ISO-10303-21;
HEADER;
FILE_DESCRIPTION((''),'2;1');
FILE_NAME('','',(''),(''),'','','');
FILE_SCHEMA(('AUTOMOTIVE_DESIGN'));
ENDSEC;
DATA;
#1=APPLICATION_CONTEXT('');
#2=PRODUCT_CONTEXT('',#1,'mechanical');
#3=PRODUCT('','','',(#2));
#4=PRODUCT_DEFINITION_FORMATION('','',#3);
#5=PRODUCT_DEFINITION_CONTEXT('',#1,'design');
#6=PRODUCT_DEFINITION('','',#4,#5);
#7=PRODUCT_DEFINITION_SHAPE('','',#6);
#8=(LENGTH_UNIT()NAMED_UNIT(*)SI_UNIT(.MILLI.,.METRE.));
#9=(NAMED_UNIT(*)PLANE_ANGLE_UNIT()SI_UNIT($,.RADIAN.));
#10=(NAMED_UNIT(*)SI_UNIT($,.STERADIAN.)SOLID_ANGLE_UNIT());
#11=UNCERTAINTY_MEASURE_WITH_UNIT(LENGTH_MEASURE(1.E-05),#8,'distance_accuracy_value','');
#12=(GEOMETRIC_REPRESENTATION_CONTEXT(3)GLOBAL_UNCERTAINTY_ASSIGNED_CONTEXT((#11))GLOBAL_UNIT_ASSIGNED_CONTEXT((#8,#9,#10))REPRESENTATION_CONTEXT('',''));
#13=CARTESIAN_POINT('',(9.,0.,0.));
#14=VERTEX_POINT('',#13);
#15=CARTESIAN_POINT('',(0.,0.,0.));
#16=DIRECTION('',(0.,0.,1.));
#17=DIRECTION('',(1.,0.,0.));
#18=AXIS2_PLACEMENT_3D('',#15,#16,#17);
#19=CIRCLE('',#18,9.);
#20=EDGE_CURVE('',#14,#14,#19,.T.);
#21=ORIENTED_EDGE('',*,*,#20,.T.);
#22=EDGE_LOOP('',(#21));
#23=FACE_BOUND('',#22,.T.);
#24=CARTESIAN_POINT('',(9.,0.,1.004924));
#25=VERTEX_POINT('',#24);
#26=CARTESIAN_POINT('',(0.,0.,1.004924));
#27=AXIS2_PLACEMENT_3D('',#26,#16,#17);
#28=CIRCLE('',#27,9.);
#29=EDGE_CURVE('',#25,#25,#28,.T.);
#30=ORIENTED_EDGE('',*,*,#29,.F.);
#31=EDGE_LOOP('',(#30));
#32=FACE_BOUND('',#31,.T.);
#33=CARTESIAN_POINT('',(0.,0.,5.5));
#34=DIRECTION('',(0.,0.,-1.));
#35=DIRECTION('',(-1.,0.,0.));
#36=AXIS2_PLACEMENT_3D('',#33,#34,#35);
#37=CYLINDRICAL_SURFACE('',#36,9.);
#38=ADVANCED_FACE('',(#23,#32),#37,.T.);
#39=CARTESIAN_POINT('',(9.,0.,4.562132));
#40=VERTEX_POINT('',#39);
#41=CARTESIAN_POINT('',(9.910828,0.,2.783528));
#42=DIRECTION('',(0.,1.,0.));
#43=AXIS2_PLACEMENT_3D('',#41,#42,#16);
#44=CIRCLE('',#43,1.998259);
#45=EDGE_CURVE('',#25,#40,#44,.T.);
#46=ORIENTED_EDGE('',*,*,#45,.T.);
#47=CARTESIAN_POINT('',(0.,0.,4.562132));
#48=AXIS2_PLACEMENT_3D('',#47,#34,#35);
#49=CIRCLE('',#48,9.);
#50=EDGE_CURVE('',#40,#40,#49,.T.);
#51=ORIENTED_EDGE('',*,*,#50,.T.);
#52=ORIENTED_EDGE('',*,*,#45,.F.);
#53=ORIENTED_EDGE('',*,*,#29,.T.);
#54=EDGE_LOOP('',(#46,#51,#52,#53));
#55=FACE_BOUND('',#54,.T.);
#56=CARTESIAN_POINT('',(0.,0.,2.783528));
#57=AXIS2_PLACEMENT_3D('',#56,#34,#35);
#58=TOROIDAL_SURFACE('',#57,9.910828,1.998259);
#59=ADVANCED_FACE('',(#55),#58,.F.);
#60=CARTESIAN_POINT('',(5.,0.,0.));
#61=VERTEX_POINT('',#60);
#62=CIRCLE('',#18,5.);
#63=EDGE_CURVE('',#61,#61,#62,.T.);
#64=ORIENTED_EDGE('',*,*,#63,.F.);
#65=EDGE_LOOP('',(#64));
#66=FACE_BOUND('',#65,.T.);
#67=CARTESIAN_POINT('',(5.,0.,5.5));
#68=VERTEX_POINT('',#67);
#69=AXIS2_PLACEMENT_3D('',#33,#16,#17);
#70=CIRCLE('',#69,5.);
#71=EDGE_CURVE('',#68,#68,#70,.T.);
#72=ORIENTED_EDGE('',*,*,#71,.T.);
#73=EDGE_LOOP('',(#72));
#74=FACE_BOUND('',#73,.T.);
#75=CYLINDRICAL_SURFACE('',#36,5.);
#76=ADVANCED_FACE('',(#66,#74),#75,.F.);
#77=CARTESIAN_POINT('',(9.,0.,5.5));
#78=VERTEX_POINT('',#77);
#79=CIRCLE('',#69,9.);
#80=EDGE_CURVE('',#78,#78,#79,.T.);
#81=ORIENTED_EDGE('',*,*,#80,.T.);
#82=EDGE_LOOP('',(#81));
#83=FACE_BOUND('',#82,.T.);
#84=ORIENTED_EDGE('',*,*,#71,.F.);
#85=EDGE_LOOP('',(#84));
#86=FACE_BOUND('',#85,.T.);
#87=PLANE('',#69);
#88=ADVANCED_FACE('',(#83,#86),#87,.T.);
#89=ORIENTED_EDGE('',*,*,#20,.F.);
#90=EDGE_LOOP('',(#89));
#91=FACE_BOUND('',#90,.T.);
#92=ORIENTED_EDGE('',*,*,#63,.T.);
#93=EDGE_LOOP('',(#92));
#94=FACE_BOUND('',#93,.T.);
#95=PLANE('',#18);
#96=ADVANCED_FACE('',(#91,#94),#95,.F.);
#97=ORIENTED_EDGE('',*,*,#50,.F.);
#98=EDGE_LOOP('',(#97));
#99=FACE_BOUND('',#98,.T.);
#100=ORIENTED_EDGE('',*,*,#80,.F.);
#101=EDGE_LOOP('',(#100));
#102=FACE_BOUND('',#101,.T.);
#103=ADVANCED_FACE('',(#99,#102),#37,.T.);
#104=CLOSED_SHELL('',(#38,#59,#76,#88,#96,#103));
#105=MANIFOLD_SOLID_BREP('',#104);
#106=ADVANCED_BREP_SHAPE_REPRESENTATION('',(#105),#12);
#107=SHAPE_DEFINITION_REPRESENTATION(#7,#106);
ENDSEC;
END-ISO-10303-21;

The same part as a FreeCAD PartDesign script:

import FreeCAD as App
import Part
import Sketcher
from FreeCAD import Vector

doc = App.newDocument("Part")
body = doc.addObject("PartDesign::Body", "Body")

# Sketch on XY plane
sketch1 = body.newObject("Sketcher::SketchObject", "Sketch")
sketch1.AttachmentSupport = (doc.getObject("XY_Plane"), [""])
sketch1.MapMode = "FlatFace"
sketch1.addGeometry(Part.Circle(Vector(0, 0, 0), Vector(0, 0, 1), 9), False)
sketch1.addGeometry(Part.Circle(Vector(0, 0, 0), Vector(0, 0, 1), 5), False)
sketch1.addConstraint(Sketcher.Constraint("Coincident", 0, 3, -1, 1))
sketch1.addConstraint(Sketcher.Constraint("Coincident", 1, 3, -1, 1))
sketch1.addConstraint(Sketcher.Constraint("Diameter", 0, 18.0))
sketch1.addConstraint(Sketcher.Constraint("Diameter", 1, 10.0))
pad1 = body.newObject("PartDesign::Pad", "Pad")
pad1.Profile = sketch1
pad1.Length = 5.5

# Sketch on XZ plane
sketch2 = body.newObject("Sketcher::SketchObject", "Sketch001")
sketch2.AttachmentSupport = (doc.getObject("XZ_Plane"), [""])
sketch2.MapMode = "FlatFace"
sketch2.addGeometry(Part.Circle(Vector(9.910828, 2.783528, 0), Vector(0, 0, 1), 1.998259), False)
sketch2.addConstraint(Sketcher.Constraint("Diameter", 0, 3.996518))
sketch2.addConstraint(Sketcher.Constraint("DistanceX", -1, 1, 0, 3, 9.910828))
sketch2.addConstraint(Sketcher.Constraint("DistanceY", -1, 1, 0, 3, 2.783528))

# Sketch on XY plane
sketch3 = body.newObject("Sketcher::SketchObject", "Sketch002")
sketch3.AttachmentSupport = (doc.getObject("XY_Plane"), [""])
sketch3.MapMode = "FlatFace"
sketch3.addGeometry(Part.Circle(Vector(0, 0, 0), Vector(0, 0, 1), 9.906713), False)
sketch3.addConstraint(Sketcher.Constraint("Coincident", 0, 3, -1, 1))
sketch3.addConstraint(Sketcher.Constraint("Diameter", 0, 19.813427))
doc.recompute()

subtractivepipe = body.newObject("PartDesign::SubtractivePipe", "SubtractivePipe")
subtractivepipe.Profile = sketch2
subtractivepipe.Spine = (sketch3, ["Edge1"])

doc.recompute()
